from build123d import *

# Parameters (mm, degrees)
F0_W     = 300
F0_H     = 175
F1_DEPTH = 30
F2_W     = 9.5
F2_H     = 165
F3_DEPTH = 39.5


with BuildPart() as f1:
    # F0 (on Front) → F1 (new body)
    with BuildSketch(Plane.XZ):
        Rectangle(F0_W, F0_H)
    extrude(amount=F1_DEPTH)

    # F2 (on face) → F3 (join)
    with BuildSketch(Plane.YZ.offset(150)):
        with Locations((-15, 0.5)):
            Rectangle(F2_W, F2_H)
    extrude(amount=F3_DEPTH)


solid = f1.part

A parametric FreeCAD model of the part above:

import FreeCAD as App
import Part
import Sketcher

V = App.Vector
Q = App.Units.Quantity

doc = App.newDocument("Part")
body = doc.addObject("PartDesign::Body", "Body")

# Sketch on XZ plane
sketch1 = body.newObject("Sketcher::SketchObject", "Sketch")
sketch1.AttachmentSupport = (doc.getObject("XZ_Plane"), [""])
sketch1.MapMode = "FlatFace"
sketch1.addGeometry([
    Part.LineSegment(V(-150, 88, 0), V(-150, -88, 0)),
    Part.LineSegment(V(-150, -88, 0), V(150, -88, 0)),
    Part.LineSegment(V(150, -88, 0), V(150, 88, 0)),
    Part.LineSegment(V(150, 88, 0), V(-150, 88, 0)),
], False)
sketch1.addConstraint([
    Sketcher.Constraint("Coincident", 0, 2, 1, 1),
    Sketcher.Constraint("Coincident", 1, 2, 2, 1),
    Sketcher.Constraint("Coincident", 2, 2, 3, 1),
    Sketcher.Constraint("Coincident", 3, 2, 0, 1),
    Sketcher.Constraint("Vertical", 0),
    Sketcher.Constraint("Horizontal", 1),
    Sketcher.Constraint("Vertical", 2),
    Sketcher.Constraint("Horizontal", 3),
    Sketcher.Constraint("Symmetric", 0, 2, 2, 2, -1, 1),
    Sketcher.Constraint("DistanceX", 1, 1, 1, 2, Q("300 mm")),
    Sketcher.Constraint("DistanceY", 0, 2, 0, 1, Q("175 mm")),
])
pad1 = body.newObject("PartDesign::Pad", "Pad")
pad1.Profile = sketch1
pad1.Length = 30

# Sketch on YZ plane
sketch2 = body.newObject("Sketcher::SketchObject", "Sketch001")
sketch2.AttachmentSupport = (doc.getObject("YZ_Plane"), [""])
sketch2.MapMode = "FlatFace"
sketch2.AttachmentOffset = App.Placement(V(0, 0, 150), App.Rotation())
sketch2.addGeometry([
    Part.LineSegment(V(-20, 83, 0), V(-20, -82, 0)),
    Part.LineSegment(V(-20, -82, 0), V(-10, -82, 0)),
    Part.LineSegment(V(-10, -82, 0), V(-10, 83, 0)),
    Part.LineSegment(V(-10, 83, 0), V(-20, 83, 0)),
], False)
sketch2.addConstraint([
    Sketcher.Constraint("Coincident", 0, 2, 1, 1),
    Sketcher.Constraint("Coincident", 1, 2, 2, 1),
    Sketcher.Constraint("Coincident", 2, 2, 3, 1),
    Sketcher.Constraint("Coincident", 3, 2, 0, 1),
    Sketcher.Constraint("Vertical", 0),
    Sketcher.Constraint("Horizontal", 1),
    Sketcher.Constraint("Vertical", 2),
    Sketcher.Constraint("Horizontal", 3),
    Sketcher.Constraint("DistanceY", 0, 2, 0, 1, Q("165 mm")),
    Sketcher.Constraint("DistanceX", 1, 1, 1, 2, Q("9.5 mm")),
    Sketcher.Constraint("DistanceY", 0, 2, -1, 1, Q("82 mm")),
    Sketcher.Constraint("DistanceX", 0, 2, -1, 1, Q("19.75 mm")),
])
pad2 = body.newObject("PartDesign::Pad", "Pad001")
pad2.Profile = sketch2
pad2.Length = 39.5

doc.recompute()
